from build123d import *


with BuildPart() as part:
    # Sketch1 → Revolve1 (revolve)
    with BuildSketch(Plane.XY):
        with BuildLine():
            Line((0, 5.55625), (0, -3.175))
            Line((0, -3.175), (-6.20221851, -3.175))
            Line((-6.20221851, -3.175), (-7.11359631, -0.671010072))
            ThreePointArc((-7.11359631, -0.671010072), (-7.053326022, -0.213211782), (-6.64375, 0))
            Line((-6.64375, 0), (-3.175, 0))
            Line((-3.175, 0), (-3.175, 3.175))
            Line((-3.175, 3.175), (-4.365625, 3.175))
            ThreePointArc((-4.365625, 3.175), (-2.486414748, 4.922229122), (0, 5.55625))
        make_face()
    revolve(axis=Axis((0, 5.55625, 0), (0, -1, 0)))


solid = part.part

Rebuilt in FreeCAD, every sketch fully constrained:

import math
import FreeCAD as App
import Part
import Sketcher

V = App.Vector
Q = App.Units.Quantity

doc = App.newDocument("Part")
params = doc.addObject("Spreadsheet::Sheet", "Params")
for row, (alias, value) in enumerate([
    ("sketch1_width", "0.046875 in"),
    ("sketch1_height", "0.34375 in"),
    ("sketch1_height2", "0.125 in"),
    ("revolution_angle", "360 deg"),
], start=1):
    params.set(f"A{row}", alias)
    params.set(f"B{row}", "=" + value)
    params.setAlias(f"B{row}", alias)

body = doc.addObject("PartDesign::Body", "Body")

# Sketch on XY plane
sketch1 = doc.addObject("Sketcher::SketchObject", "Sketch")
body.addObject(sketch1)
sketch1.AttachmentSupport = (doc.XY_Plane, [""])
sketch1.MapMode = "FlatFace"
sketch1.addGeometry([
    Part.LineSegment(V(0, -3.2, 0), V(0, 5.6, 0)),  # 0
    Part.ArcOfCircle(Part.Circle(V(0, 0.4, 0), V(0, 0, 1), 5.2), math.radians(90), math.radians(147)),  # 1
    Part.LineSegment(V(-4.4, 3.2, 0), V(-3.2, 3.2, 0)),  # 2
    Part.LineSegment(V(-3.2, 3.2, 0), V(-3.2, 0, 0)),  # 3
    Part.LineSegment(V(-3.2, 0, 0), V(-6.6, 0, 0)),  # 4
    Part.ArcOfCircle(Part.Circle(V(-6.6, -0.5, 0), V(0, 0, 1), 0.5), math.radians(90), math.radians(200)),  # 5
    Part.LineSegment(V(-7.1, -0.7, 0), V(-6.2, -3.2, 0)),  # 6
    Part.LineSegment(V(-6.2, -3.2, 0), V(0, -3.2, 0)),  # 7
], False)
sketch1.addConstraint([
    Sketcher.Constraint("Coincident", 0, 2, 1, 1),
    Sketcher.Constraint("Coincident", 1, 2, 2, 1),
    Sketcher.Constraint("Coincident", 2, 2, 3, 1),
    Sketcher.Constraint("Coincident", 3, 2, 4, 1),
    Sketcher.Constraint("Tangent", 4, 2, 5, 1),
    Sketcher.Constraint("Tangent", 5, 2, 6, 1),
    Sketcher.Constraint("Coincident", 6, 2, 7, 1),
    Sketcher.Constraint("Coincident", 7, 2, 0, 1),
    Sketcher.Constraint("Vertical", 0),
    Sketcher.Constraint("Horizontal", 2),
    Sketcher.Constraint("Vertical", 3),
    Sketcher.Constraint("Horizontal", 4),
    Sketcher.Constraint("Horizontal", 7),
    Sketcher.Constraint("PointOnObject", 1, 3, -2),
    Sketcher.Constraint("PointOnObject", 0, 2, -2),
    Sketcher.Constraint("PointOnObject", 3, 2, -1),
    Sketcher.Constraint("Angle", 6, Q("-70 deg")),
    Sketcher.Constraint("DistanceX", 2, 1, 2, 2, Q("0.046875 in")),
    Sketcher.Constraint("DistanceY", 0, 1, 0, 2, Q("0.34375 in")),
    Sketcher.Constraint("DistanceY", 3, 2, 3, 1, Q("0.125 in")),
    Sketcher.Constraint("Radius", 5, Q("0.5 mm")),
    Sketcher.Constraint("DistanceY", 6, 2, 1, 2, Q("0.25 in")),
    Sketcher.Constraint("DistanceX", 1, 2, -1, 1, Q("0.171875 in")),
    Sketcher.Constraint("DistanceX", 4, 2, 4, 1, Q("3.46875 mm")),
])
sketch1.setExpression("Constraints[17]", "Params.sketch1_width")
sketch1.setExpression("Constraints[18]", "Params.sketch1_height")
sketch1.setExpression("Constraints[19]", "Params.sketch1_height2")
revolution = doc.addObject("PartDesign::Revolution", "Revolution")
body.addObject(revolution)
revolution.Profile = sketch1
revolution.ReferenceAxis = (sketch1, ["V_Axis"])
revolution.setExpression("Angle", "Params.revolution_angle")

doc.recompute()
